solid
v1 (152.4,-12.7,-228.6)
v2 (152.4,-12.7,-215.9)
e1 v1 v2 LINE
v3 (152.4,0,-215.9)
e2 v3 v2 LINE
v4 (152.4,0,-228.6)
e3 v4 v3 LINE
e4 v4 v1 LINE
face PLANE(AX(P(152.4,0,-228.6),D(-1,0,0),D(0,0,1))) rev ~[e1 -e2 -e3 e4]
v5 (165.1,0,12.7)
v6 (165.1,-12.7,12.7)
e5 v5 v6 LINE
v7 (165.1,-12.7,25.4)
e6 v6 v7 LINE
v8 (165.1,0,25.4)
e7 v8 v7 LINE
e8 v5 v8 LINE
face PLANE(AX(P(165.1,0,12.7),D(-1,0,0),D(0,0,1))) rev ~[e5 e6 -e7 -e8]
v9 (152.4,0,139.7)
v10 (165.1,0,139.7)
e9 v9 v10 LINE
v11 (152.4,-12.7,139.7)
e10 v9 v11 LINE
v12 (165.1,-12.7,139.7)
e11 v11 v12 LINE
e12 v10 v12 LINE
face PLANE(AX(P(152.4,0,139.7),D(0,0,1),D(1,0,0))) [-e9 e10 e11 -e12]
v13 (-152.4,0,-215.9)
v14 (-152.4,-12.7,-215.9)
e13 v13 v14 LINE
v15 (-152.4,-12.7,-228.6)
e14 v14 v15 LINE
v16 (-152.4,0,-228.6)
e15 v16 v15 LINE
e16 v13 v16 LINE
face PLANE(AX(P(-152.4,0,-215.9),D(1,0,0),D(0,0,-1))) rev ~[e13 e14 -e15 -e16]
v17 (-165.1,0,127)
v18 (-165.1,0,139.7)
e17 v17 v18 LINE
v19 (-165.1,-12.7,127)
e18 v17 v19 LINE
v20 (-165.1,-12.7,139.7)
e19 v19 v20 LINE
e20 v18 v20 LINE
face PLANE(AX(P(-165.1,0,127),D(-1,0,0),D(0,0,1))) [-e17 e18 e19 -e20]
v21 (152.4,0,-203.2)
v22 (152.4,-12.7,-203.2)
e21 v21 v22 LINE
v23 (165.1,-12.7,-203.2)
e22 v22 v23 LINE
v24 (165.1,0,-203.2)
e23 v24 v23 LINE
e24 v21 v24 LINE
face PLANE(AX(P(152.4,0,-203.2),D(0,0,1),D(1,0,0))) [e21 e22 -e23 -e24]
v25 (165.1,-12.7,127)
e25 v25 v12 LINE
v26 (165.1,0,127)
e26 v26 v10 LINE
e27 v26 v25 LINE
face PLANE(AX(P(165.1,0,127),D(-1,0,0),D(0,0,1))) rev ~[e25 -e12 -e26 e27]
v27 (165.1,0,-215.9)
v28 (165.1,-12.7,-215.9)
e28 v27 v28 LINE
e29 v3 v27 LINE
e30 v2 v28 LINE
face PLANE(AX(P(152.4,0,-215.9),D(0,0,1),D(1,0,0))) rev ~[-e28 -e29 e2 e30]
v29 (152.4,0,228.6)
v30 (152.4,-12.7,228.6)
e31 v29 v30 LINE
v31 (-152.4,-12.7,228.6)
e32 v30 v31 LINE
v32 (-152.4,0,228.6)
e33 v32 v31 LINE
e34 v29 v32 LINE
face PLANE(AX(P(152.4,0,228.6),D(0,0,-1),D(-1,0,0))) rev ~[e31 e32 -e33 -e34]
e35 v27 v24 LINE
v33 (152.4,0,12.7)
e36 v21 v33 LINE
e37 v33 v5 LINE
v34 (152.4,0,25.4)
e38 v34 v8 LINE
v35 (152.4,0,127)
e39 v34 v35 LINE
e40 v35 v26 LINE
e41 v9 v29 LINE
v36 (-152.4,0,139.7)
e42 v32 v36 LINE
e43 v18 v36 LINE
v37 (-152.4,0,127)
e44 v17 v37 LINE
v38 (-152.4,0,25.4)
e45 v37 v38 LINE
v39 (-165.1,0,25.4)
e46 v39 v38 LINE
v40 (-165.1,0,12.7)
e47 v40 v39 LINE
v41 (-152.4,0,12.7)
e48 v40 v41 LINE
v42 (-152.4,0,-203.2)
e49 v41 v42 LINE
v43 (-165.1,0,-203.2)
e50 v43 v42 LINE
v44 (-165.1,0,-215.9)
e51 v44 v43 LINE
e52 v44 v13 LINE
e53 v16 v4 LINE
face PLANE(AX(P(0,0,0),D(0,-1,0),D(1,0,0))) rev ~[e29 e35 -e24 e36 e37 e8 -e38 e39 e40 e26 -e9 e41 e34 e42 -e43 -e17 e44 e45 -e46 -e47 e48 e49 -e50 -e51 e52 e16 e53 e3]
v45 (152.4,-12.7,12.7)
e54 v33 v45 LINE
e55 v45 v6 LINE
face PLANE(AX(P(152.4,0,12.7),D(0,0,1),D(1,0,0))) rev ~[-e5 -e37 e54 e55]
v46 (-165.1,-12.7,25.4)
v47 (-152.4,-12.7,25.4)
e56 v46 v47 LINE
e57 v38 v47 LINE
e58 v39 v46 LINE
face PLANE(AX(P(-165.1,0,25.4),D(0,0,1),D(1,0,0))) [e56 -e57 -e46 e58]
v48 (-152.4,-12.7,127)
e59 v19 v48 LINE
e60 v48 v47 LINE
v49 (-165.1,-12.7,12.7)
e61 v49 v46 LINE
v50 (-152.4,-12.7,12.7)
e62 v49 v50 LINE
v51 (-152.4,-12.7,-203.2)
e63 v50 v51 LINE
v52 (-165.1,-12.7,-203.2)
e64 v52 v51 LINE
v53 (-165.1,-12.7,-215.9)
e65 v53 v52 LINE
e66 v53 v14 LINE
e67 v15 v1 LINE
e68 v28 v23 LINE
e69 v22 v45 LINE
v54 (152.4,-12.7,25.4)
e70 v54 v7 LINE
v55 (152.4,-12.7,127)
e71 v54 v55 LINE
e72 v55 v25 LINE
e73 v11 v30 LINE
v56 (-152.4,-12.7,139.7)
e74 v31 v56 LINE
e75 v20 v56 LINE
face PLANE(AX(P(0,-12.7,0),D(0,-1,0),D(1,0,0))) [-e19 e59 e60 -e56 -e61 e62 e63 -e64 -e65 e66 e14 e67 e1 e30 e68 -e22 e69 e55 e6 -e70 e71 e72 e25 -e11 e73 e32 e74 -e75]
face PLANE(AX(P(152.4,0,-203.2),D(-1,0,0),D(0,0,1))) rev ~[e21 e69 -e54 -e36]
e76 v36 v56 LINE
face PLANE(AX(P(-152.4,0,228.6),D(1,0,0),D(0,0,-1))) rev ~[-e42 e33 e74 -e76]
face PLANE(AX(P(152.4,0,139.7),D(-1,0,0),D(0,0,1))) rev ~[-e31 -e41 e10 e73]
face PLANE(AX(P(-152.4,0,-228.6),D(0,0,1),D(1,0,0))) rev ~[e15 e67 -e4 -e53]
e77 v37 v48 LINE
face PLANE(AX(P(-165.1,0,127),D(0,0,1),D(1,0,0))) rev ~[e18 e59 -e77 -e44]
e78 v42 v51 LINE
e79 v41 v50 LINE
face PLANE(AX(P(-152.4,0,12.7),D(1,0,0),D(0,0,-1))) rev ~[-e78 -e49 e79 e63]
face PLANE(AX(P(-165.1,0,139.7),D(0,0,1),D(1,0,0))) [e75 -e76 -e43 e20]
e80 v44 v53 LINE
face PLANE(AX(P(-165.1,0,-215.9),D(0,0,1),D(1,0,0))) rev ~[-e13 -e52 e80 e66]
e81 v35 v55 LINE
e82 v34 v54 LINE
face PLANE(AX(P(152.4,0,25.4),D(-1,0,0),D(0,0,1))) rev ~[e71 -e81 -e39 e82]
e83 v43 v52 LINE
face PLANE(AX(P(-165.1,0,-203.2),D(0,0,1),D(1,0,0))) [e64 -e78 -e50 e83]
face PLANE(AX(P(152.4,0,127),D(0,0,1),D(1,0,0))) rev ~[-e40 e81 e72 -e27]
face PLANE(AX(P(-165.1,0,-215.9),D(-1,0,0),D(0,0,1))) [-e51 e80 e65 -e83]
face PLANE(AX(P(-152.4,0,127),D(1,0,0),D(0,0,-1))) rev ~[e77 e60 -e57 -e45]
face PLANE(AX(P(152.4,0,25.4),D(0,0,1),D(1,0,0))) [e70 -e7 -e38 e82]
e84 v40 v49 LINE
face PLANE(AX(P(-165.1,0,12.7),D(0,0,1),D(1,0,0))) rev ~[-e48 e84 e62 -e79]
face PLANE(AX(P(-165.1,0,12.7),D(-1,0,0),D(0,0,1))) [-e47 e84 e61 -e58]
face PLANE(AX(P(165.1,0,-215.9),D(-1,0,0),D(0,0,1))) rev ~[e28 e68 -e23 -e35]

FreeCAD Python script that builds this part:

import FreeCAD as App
import Part
import Sketcher

V = App.Vector
Q = App.Units.Quantity

doc = App.newDocument("Part")
body = doc.addObject("PartDesign::Body", "Body")

sketch1 = body.newObject("Sketcher::SketchObject", "Sketch")
sketch1.AttachmentSupport = (doc.getObject("XZ_Plane"), [""])
sketch1.MapMode = "FlatFace"
sketch1.addGeometry(Part.LineSegment(V(152, 229, 0), V(-152, 229, 0)), False)
sketch1.addGeometry(Part.LineSegment(V(-152, 229, 0), V(-152, 140, 0)), False)
sketch1.addGeometry(Part.LineSegment(V(-152, 140, 0), V(-165, 140, 0)), False)
sketch1.addGeometry(Part.LineSegment(V(-165, 140, 0), V(-165, 127, 0)), False)
sketch1.addGeometry(Part.LineSegment(V(-165, 127, 0), V(-152, 127, 0)), False)
sketch1.addGeometry(Part.LineSegment(V(-152, 127, 0), V(-152, 25, 0)), False)
sketch1.addGeometry(Part.LineSegment(V(-152, 25, 0), V(-165, 25, 0)), False)
sketch1.addGeometry(Part.LineSegment(V(-165, 25, 0), V(-165, 13, 0)), False)
sketch1.addGeometry(Part.LineSegment(V(-165, 13, 0), V(-152, 13, 0)), False)
sketch1.addGeometry(Part.LineSegment(V(-152, 13, 0), V(-152, -203, 0)), False)
sketch1.addGeometry(Part.LineSegment(V(-152, -203, 0), V(-165, -203, 0)), False)
sketch1.addGeometry(Part.LineSegment(V(-165, -203, 0), V(-165, -216, 0)), False)
sketch1.addGeometry(Part.LineSegment(V(-165, -216, 0), V(-152, -216, 0)), False)
sketch1.addGeometry(Part.LineSegment(V(-152, -216, 0), V(-152, -229, 0)), False)
sketch1.addGeometry(Part.LineSegment(V(-152, -229, 0), V(152, -229, 0)), False)
sketch1.addGeometry(Part.LineSegment(V(152, -229, 0), V(152, -216, 0)), False)
sketch1.addGeometry(Part.LineSegment(V(152, -216, 0), V(165, -216, 0)), False)
sketch1.addGeometry(Part.LineSegment(V(165, -216, 0), V(165, -203, 0)), False)
sketch1.addGeometry(Part.LineSegment(V(165, -203, 0), V(152, -203, 0)), False)
sketch1.addGeometry(Part.LineSegment(V(152, -203, 0), V(152, 13, 0)), False)
sketch1.addGeometry(Part.LineSegment(V(152, 13, 0), V(165, 13, 0)), False)
sketch1.addGeometry(Part.LineSegment(V(165, 13, 0), V(165, 25, 0)), False)
sketch1.addGeometry(Part.LineSegment(V(165, 25, 0), V(152, 25, 0)), False)
sketch1.addGeometry(Part.LineSegment(V(152, 25, 0), V(152, 127, 0)), False)
sketch1.addGeometry(Part.LineSegment(V(152, 127, 0), V(165, 127, 0)), False)
sketch1.addGeometry(Part.LineSegment(V(165, 127, 0), V(165, 140, 0)), False)
sketch1.addGeometry(Part.LineSegment(V(165, 140, 0), V(152, 140, 0)), False)
sketch1.addGeometry(Part.LineSegment(V(152, 140, 0), V(152, 229, 0)), False)
sketch1.addConstraint(Sketcher.Constraint("Coincident", 0, 2, 1, 1))
sketch1.addConstraint(Sketcher.Constraint("Coincident", 1, 2, 2, 1))
sketch1.addConstraint(Sketcher.Constraint("Coincident", 2, 2, 3, 1))
sketch1.addConstraint(Sketcher.Constraint("Coincident", 3, 2, 4, 1))
sketch1.addConstraint(Sketcher.Constraint("Coincident", 4, 2, 5, 1))
sketch1.addConstraint(Sketcher.Constraint("Coincident", 5, 2, 6, 1))
sketch1.addConstraint(Sketcher.Constraint("Coincident", 6, 2, 7, 1))
sketch1.addConstraint(Sketcher.Constraint("Coincident", 7, 2, 8, 1))
sketch1.addConstraint(Sketcher.Constraint("Coincident", 8, 2, 9, 1))
sketch1.addConstraint(Sketcher.Constraint("Coincident", 9, 2, 10, 1))
sketch1.addConstraint(Sketcher.Constraint("Coincident", 10, 2, 11, 1))
sketch1.addConstraint(Sketcher.Constraint("Coincident", 11, 2, 12, 1))
sketch1.addConstraint(Sketcher.Constraint("Coincident", 12, 2, 13, 1))
sketch1.addConstraint(Sketcher.Constraint("Coincident", 13, 2, 14, 1))
sketch1.addConstraint(Sketcher.Constraint("Coincident", 14, 2, 15, 1))
sketch1.addConstraint(Sketcher.Constraint("Coincident", 15, 2, 16, 1))
sketch1.addConstraint(Sketcher.Constraint("Coincident", 16, 2, 17, 1))
sketch1.addConstraint(Sketcher.Constraint("Coincident", 17, 2, 18, 1))
sketch1.addConstraint(Sketcher.Constraint("Coincident", 18, 2, 19, 1))
sketch1.addConstraint(Sketcher.Constraint("Coincident", 19, 2, 20, 1))
sketch1.addConstraint(Sketcher.Constraint("Coincident", 20, 2, 21, 1))
sketch1.addConstraint(Sketcher.Constraint("Coincident", 21, 2, 22, 1))
sketch1.addConstraint(Sketcher.Constraint("Coincident", 22, 2, 23, 1))
sketch1.addConstraint(Sketcher.Constraint("Coincident", 23, 2, 24, 1))
sketch1.addConstraint(Sketcher.Constraint("Coincident", 24, 2, 25, 1))
sketch1.addConstraint(Sketcher.Constraint("Coincident", 25, 2, 26, 1))
sketch1.addConstraint(Sketcher.Constraint("Coincident", 26, 2, 27, 1))
sketch1.addConstraint(Sketcher.Constraint("Coincident", 27, 2, 0, 1))
sketch1.addConstraint(Sketcher.Constraint("Horizontal", 0))
sketch1.addConstraint(Sketcher.Constraint("Vertical", 1))
sketch1.addConstraint(Sketcher.Constraint("Horizontal", 2))
sketch1.addConstraint(Sketcher.Constraint("Vertical", 3))
sketch1.addConstraint(Sketcher.Constraint("Horizontal", 4))
sketch1.addConstraint(Sketcher.Constraint("Vertical", 5))
sketch1.addConstraint(Sketcher.Constraint("Horizontal", 6))
sketch1.addConstraint(Sketcher.Constraint("Vertical", 7))
sketch1.addConstraint(Sketcher.Constraint("Horizontal", 8))
sketch1.addConstraint(Sketcher.Constraint("Vertical", 9))
sketch1.addConstraint(Sketcher.Constraint("Horizontal", 10))
sketch1.addConstraint(Sketcher.Constraint("Vertical", 11))
sketch1.addConstraint(Sketcher.Constraint("Horizontal", 12))
sketch1.addConstraint(Sketcher.Constraint("Vertical", 13))
sketch1.addConstraint(Sketcher.Constraint("Horizontal", 14))
sketch1.addConstraint(Sketcher.Constraint("Vertical", 15))
sketch1.addConstraint(Sketcher.Constraint("Horizontal", 16))
sketch1.addConstraint(Sketcher.Constraint("Vertical", 17))
sketch1.addConstraint(Sketcher.Constraint("Horizontal", 18))
sketch1.addConstraint(Sketcher.Constraint("Vertical", 19))
sketch1.addConstraint(Sketcher.Constraint("Horizontal", 20))
sketch1.addConstraint(Sketcher.Constraint("Vertical", 21))
sketch1.addConstraint(Sketcher.Constraint("Horizontal", 22))
sketch1.addConstraint(Sketcher.Constraint("Vertical", 23))
sketch1.addConstraint(Sketcher.Constraint("Horizontal", 24))
sketch1.addConstraint(Sketcher.Constraint("Vertical", 25))
sketch1.addConstraint(Sketcher.Constraint("Horizontal", 26))
sketch1.addConstraint(Sketcher.Constraint("Vertical", 27))
sketch1.addConstraint(Sketcher.Constraint("Symmetric", 0, 2, 14, 2, -1, 1))
sketch1.addConstraint(Sketcher.Constraint("Symmetric", 12, 2, 15, 2, -2))
sketch1.addConstraint(Sketcher.Constraint("Symmetric", 10, 2, 17, 2, -2))
sketch1.addConstraint(Sketcher.Constraint("Symmetric", 8, 2, 19, 2, -2))
sketch1.addConstraint(Sketcher.Constraint("Symmetric", 6, 2, 21, 2, -2))
sketch1.addConstraint(Sketcher.Constraint("Symmetric", 4, 2, 23, 2, -2))
sketch1.addConstraint(Sketcher.Constraint("Symmetric", 2, 2, 25, 2, -2))
sketch1.addConstraint(Sketcher.Constraint("Vertical", 1, 2, 4, 2))
sketch1.addConstraint(Sketcher.Constraint("Vertical", 3, 2, 6, 2))
sketch1.addConstraint(Sketcher.Constraint("Vertical", 5, 2, 8, 2))
sketch1.addConstraint(Sketcher.Constraint("Vertical", 7, 2, 10, 2))
sketch1.addConstraint(Sketcher.Constraint("Vertical", 23, 2, 26, 2))
sketch1.addConstraint(Sketcher.Constraint("Equal", 26, 3))
sketch1.addConstraint(Sketcher.Constraint("Equal", 3, 7))
sketch1.addConstraint(Sketcher.Constraint("Equal", 7, 11))
sketch1.addConstraint(Sketcher.Constraint("Equal", 11, 13))
sketch1.addConstraint(Sketcher.Constraint("DistanceX", 0, 2, 0, 1, Q("12 in")))
sketch1.addConstraint(Sketcher.Constraint("DistanceY", 5, 2, 5, 1, Q("4 in")))
sketch1.addConstraint(Sketcher.Constraint("DistanceX", 2, 2, 2, 1, Q("0.5 in")))
sketch1.addConstraint(Sketcher.Constraint("DistanceY", 1, 2, 1, 1, Q("3.5 in")))
sketch1.addConstraint(Sketcher.Constraint("DistanceY", 9, 2, 9, 1, Q("8.5 in")))
pad1 = body.newObject("PartDesign::Pad", "Pad")
pad1.Profile = sketch1
pad1.Length = Q("0.5 in")

doc.recompute()
